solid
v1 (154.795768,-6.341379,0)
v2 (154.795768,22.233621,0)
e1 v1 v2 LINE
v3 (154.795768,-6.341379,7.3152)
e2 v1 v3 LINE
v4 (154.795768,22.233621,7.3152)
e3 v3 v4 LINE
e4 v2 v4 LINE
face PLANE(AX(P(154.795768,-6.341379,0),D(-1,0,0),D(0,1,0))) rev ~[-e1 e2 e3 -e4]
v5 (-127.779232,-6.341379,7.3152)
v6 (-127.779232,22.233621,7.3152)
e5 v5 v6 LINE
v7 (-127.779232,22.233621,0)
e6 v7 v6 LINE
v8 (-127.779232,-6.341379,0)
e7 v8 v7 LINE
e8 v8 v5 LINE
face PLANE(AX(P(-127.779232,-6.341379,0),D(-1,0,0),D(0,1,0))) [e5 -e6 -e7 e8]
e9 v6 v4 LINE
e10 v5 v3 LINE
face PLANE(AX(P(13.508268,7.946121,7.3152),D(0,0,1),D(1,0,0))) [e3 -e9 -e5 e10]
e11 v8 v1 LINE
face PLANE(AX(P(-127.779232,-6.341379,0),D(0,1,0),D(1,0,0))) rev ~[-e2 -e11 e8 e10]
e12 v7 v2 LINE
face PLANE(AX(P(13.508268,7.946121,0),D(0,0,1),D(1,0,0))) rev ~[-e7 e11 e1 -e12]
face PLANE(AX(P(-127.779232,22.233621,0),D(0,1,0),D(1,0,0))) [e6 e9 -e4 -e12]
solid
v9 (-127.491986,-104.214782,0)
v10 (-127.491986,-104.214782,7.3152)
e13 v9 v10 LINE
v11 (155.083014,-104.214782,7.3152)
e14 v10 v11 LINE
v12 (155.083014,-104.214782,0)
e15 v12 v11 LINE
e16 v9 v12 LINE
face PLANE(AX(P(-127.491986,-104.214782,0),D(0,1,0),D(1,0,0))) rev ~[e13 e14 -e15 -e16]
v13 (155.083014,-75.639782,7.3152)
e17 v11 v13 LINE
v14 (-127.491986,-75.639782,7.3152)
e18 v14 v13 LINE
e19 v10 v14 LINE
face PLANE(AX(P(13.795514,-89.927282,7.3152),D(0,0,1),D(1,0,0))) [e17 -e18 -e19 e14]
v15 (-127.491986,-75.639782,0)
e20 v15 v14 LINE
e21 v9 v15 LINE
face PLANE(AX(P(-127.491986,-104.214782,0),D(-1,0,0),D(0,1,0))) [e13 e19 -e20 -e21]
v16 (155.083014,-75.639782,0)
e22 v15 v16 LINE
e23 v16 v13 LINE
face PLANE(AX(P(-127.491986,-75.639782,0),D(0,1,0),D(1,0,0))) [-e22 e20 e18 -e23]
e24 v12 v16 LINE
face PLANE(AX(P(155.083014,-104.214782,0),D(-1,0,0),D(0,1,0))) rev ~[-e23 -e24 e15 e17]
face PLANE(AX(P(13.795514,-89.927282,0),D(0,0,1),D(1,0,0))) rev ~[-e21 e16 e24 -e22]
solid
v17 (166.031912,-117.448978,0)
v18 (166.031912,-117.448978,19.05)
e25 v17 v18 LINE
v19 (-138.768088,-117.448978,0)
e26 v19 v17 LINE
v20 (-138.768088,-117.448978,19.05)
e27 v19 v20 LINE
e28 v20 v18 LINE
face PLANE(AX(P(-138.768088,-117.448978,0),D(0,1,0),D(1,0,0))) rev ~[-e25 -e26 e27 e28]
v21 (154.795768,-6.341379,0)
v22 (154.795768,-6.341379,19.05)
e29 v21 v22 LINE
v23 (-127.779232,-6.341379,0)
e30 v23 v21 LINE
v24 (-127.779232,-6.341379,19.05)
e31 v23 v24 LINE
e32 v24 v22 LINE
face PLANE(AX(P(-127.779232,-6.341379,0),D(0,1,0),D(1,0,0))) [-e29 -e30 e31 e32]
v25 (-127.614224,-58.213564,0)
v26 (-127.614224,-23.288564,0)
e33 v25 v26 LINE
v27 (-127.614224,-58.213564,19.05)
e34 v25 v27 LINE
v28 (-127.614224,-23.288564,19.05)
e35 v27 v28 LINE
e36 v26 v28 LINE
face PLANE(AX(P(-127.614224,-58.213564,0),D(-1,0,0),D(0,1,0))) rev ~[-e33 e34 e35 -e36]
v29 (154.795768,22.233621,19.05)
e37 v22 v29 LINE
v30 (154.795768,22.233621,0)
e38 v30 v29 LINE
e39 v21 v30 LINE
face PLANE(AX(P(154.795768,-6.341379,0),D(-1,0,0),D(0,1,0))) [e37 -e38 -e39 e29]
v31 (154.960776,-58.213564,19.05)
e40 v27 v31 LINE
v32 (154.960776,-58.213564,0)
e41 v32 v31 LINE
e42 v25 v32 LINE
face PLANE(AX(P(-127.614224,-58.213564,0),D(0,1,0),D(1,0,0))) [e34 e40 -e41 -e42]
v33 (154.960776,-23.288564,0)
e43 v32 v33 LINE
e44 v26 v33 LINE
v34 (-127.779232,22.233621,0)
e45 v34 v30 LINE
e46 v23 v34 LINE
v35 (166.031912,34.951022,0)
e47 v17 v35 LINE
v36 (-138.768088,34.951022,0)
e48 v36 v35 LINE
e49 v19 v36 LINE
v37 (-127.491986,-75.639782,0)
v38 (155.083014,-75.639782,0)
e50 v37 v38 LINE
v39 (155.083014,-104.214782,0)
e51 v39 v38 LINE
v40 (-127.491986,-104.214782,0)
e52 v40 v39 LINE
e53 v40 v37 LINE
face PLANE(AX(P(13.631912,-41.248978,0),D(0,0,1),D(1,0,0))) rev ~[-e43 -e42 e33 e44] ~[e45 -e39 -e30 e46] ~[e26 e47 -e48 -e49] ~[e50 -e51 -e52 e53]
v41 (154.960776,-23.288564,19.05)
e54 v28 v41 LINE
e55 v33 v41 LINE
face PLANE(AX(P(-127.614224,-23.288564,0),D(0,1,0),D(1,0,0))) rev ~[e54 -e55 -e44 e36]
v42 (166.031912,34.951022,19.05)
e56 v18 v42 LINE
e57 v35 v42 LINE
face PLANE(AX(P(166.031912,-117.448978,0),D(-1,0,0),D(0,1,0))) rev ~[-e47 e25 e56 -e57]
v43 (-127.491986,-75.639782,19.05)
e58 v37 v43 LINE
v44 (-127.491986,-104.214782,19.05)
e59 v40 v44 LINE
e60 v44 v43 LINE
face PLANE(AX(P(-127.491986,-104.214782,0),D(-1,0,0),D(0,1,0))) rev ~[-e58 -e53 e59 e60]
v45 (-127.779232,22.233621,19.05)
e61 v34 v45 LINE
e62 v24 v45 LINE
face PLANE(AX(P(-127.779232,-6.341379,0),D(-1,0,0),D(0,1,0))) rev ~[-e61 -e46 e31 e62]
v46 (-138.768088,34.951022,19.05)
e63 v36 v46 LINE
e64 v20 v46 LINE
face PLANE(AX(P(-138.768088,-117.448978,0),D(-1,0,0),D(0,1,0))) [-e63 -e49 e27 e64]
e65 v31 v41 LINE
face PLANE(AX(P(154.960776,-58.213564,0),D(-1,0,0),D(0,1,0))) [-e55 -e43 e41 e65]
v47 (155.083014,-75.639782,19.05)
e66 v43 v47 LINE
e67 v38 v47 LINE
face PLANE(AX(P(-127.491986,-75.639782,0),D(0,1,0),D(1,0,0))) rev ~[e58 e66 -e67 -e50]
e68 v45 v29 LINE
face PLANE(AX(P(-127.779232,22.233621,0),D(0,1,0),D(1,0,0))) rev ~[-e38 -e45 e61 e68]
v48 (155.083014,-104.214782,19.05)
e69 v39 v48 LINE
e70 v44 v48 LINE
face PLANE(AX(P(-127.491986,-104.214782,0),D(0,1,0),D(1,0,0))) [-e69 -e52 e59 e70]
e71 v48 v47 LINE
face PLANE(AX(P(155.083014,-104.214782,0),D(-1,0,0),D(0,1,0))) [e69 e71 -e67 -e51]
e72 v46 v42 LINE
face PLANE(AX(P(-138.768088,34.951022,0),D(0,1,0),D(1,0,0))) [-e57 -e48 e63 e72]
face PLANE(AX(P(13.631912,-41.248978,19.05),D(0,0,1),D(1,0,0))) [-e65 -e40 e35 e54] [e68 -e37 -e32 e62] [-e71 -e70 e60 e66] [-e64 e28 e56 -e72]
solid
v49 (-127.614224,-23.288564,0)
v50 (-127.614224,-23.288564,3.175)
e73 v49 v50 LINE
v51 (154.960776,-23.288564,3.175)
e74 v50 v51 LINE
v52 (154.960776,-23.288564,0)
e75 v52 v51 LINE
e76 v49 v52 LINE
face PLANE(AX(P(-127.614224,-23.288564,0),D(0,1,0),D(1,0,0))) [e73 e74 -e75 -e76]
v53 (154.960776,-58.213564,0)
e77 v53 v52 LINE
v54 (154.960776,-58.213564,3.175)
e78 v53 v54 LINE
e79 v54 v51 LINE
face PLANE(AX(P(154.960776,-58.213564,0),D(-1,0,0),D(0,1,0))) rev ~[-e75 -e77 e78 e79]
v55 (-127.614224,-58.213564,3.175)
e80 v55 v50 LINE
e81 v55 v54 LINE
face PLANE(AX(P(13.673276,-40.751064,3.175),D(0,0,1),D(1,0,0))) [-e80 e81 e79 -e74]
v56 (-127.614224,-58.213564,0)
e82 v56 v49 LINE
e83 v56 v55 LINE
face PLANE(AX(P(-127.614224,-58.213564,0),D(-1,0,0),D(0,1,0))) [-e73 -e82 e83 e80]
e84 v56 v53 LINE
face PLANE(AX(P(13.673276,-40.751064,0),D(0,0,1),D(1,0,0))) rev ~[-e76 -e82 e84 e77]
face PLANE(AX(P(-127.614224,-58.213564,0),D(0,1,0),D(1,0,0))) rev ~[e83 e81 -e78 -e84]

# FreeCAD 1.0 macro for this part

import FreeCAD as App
import Part
import Sketcher
from FreeCAD import Vector
Q = App.Units.Quantity

doc = App.newDocument("Part")
body = doc.addObject("PartDesign::Body", "Body")
body.AllowCompound = True

# Sketch on XY plane
sketch1 = doc.addObject("Sketcher::SketchObject", "Sketch")
body.addObject(sketch1)
sketch1.AttachmentSupport = (doc.XY_Plane, [""])
sketch1.MapMode = "FlatFace"
sketch1.addGeometry([
    Part.LineSegment(Vector(-127, -76, 0), Vector(-127, -104, 0)),  # 0
    Part.LineSegment(Vector(-127, -104, 0), Vector(155, -104, 0)),  # 1
    Part.LineSegment(Vector(155, -104, 0), Vector(155, -76, 0)),  # 2
    Part.LineSegment(Vector(155, -76, 0), Vector(-127, -76, 0)),  # 3
    Part.LineSegment(Vector(-128, 22, 0), Vector(-128, -6, 0)),  # 4
    Part.LineSegment(Vector(-128, -6, 0), Vector(155, -6, 0)),  # 5
    Part.LineSegment(Vector(155, -6, 0), Vector(155, 22, 0)),  # 6
    Part.LineSegment(Vector(155, 22, 0), Vector(-128, 22, 0)),  # 7
], False)
sketch1.addConstraint([
    Sketcher.Constraint("Coincident", 0, 2, 1, 1),
    Sketcher.Constraint("Coincident", 1, 2, 2, 1),
    Sketcher.Constraint("Coincident", 2, 2, 3, 1),
    Sketcher.Constraint("Coincident", 3, 2, 0, 1),
    Sketcher.Constraint("Coincident", 4, 2, 5, 1),
    Sketcher.Constraint("Coincident", 5, 2, 6, 1),
    Sketcher.Constraint("Coincident", 6, 2, 7, 1),
    Sketcher.Constraint("Coincident", 7, 2, 4, 1),
    Sketcher.Constraint("Vertical", 0),
    Sketcher.Constraint("Horizontal", 1),
    Sketcher.Constraint("Vertical", 2),
    Sketcher.Constraint("Horizontal", 3),
    Sketcher.Constraint("Vertical", 4),
    Sketcher.Constraint("Horizontal", 5),
    Sketcher.Constraint("Vertical", 6),
    Sketcher.Constraint("Horizontal", 7),
    Sketcher.Constraint("Equal", 3, 5),
    Sketcher.Constraint("Equal", 2, 4),
    Sketcher.Constraint("DistanceX", 1, 1, 1, 2, Q("11.125 in")),
    Sketcher.Constraint("DistanceY", 0, 2, 0, 1, Q("1.125 in")),
    Sketcher.Constraint("DistanceY", 0, 2, -1, 1, 104.214782),
    Sketcher.Constraint("DistanceX", 4, 2, -1, 1, 127.779232),
    Sketcher.Constraint("DistanceY", 4, 2, -1, 1, 6.341379),
    Sketcher.Constraint("DistanceX", 0, 2, -1, 1, 127.491986),
])
pad1 = doc.addObject("PartDesign::Pad", "Pad")
body.addObject(pad1)
pad1.Profile = sketch1
pad1.Length = Q("0.288 in")
body2 = doc.addObject("PartDesign::Body", "Body001")

# Sketch on XY plane
sketch2 = doc.addObject("Sketcher::SketchObject", "Sketch001")
body2.addObject(sketch2)
sketch2.AttachmentSupport = (doc.getObject("XY_Plane001"), [""])
sketch2.MapMode = "FlatFace"
sketch2.addGeometry([
    Part.LineSegment(Vector(-128, -23, 0), Vector(-128, -58, 0)),
    Part.LineSegment(Vector(-128, -58, 0), Vector(155, -58, 0)),
    Part.LineSegment(Vector(155, -58, 0), Vector(155, -23, 0)),
    Part.LineSegment(Vector(155, -23, 0), Vector(-128, -23, 0)),
], False)
sketch2.addConstraint([
    Sketcher.Constraint("Coincident", 0, 2, 1, 1),
    Sketcher.Constraint("Coincident", 1, 2, 2, 1),
    Sketcher.Constraint("Coincident", 2, 2, 3, 1),
    Sketcher.Constraint("Coincident", 3, 2, 0, 1),
    Sketcher.Constraint("Vertical", 0),
    Sketcher.Constraint("Horizontal", 1),
    Sketcher.Constraint("Vertical", 2),
    Sketcher.Constraint("Horizontal", 3),
    Sketcher.Constraint("DistanceX", 1, 1, 1, 2, Q("11.125 in")),
    Sketcher.Constraint("DistanceY", 0, 2, 0, 1, Q("1.375 in")),
    Sketcher.Constraint("DistanceX", 0, 2, -1, 1, 127.614224),
    Sketcher.Constraint("DistanceY", 0, 2, -1, 1, 58.213564),
])
pad2 = doc.addObject("PartDesign::Pad", "Pad001")
body2.addObject(pad2)
pad2.Profile = sketch2
pad2.Length = Q("0.125 in")
body3 = doc.addObject("PartDesign::Body", "Body002")

# Sketch on XY plane
sketch3 = doc.addObject("Sketcher::SketchObject", "Sketch002")
body3.addObject(sketch3)
sketch3.AttachmentSupport = (doc.getObject("XY_Plane002"), [""])
sketch3.MapMode = "FlatFace"
sketch3.addGeometry([
    Part.LineSegment(Vector(-139, 35, 0), Vector(-139, -117, 0)),  # 0
    Part.LineSegment(Vector(-139, -117, 0), Vector(166, -117, 0)),  # 1
    Part.LineSegment(Vector(166, -117, 0), Vector(166, 35, 0)),  # 2
    Part.LineSegment(Vector(166, 35, 0), Vector(-139, 35, 0)),  # 3
    Part.LineSegment(Vector(155, -104, 0), Vector(-127, -104, 0)),  # 4
    Part.LineSegment(Vector(-127, -104, 0), Vector(-127, -76, 0)),  # 5
    Part.LineSegment(Vector(-127, -76, 0), Vector(155, -76, 0)),  # 6
    Part.LineSegment(Vector(155, -76, 0), Vector(155, -104, 0)),  # 7
    Part.LineSegment(Vector(155, -6, 0), Vector(-128, -6, 0)),  # 8
    Part.LineSegment(Vector(-128, -6, 0), Vector(-128, 22, 0)),  # 9
    Part.LineSegment(Vector(-128, 22, 0), Vector(155, 22, 0)),  # 10
    Part.LineSegment(Vector(155, 22, 0), Vector(155, -6, 0)),  # 11
    Part.LineSegment(Vector(155, -58, 0), Vector(-128, -58, 0)),  # 12
    Part.LineSegment(Vector(-128, -58, 0), Vector(-128, -23, 0)),  # 13
    Part.LineSegment(Vector(-128, -23, 0), Vector(155, -23, 0)),  # 14
    Part.LineSegment(Vector(155, -23, 0), Vector(155, -58, 0)),  # 15
], False)
sketch3.addConstraint([
    Sketcher.Constraint("Coincident", 0, 2, 1, 1),
    Sketcher.Constraint("Coincident", 1, 2, 2, 1),
    Sketcher.Constraint("Coincident", 2, 2, 3, 1),
    Sketcher.Constraint("Coincident", 3, 2, 0, 1),
    Sketcher.Constraint("Coincident", 4, 2, 5, 1),
    Sketcher.Constraint("Coincident", 5, 2, 6, 1),
    Sketcher.Constraint("Coincident", 6, 2, 7, 1),
    Sketcher.Constraint("Coincident", 7, 2, 4, 1),
    Sketcher.Constraint("Coincident", 8, 2, 9, 1),
    Sketcher.Constraint("Coincident", 9, 2, 10, 1),
    Sketcher.Constraint("Coincident", 10, 2, 11, 1),
    Sketcher.Constraint("Coincident", 11, 2, 8, 1),
    Sketcher.Constraint("Coincident", 12, 2, 13, 1),
    Sketcher.Constraint("Coincident", 13, 2, 14, 1),
    Sketcher.Constraint("Coincident", 14, 2, 15, 1),
    Sketcher.Constraint("Coincident", 15, 2, 12, 1),
    Sketcher.Constraint("Vertical", 0),
    Sketcher.Constraint("Horizontal", 1),
    Sketcher.Constraint("Vertical", 2),
    Sketcher.Constraint("Horizontal", 3),
    Sketcher.Constraint("Horizontal", 4),
    Sketcher.Constraint("Vertical", 5),
    Sketcher.Constraint("Horizontal", 6),
    Sketcher.Constraint("Vertical", 7),
    Sketcher.Constraint("Horizontal", 8),
    Sketcher.Constraint("Vertical", 9),
    Sketcher.Constraint("Horizontal", 10),
    Sketcher.Constraint("Vertical", 11),
    Sketcher.Constraint("Horizontal", 12),
    Sketcher.Constraint("Vertical", 13),
    Sketcher.Constraint("Horizontal", 14),
    Sketcher.Constraint("Vertical", 15),
    Sketcher.Constraint("Equal", 6, 8),
    Sketcher.Constraint("Equal", 10, 12),
    Sketcher.Constraint("Equal", 7, 9),
    Sketcher.Constraint("DistanceX", 1, 1, 1, 2, Q("12 in")),
    Sketcher.Constraint("DistanceY", 0, 2, 0, 1, Q("6 in")),
    Sketcher.Constraint("DistanceX", 4, 2, 4, 1, Q("11.125 in")),
    Sketcher.Constraint("DistanceY", 5, 1, 5, 2, Q("1.125 in")),
    Sketcher.Constraint("DistanceY", 13, 1, 13, 2, Q("1.375 in")),
    Sketcher.Constraint("DistanceX", 4, 2, 1, 2, 293.523898),
    Sketcher.Constraint("DistanceY", 8, 2, 3, 2, 41.292401),
    Sketcher.Constraint("DistanceX", 0, 2, -1, 1, 138.768088),
    Sketcher.Constraint("DistanceY", 4, 2, -1, 1, 104.214782),
    Sketcher.Constraint("DistanceX", 8, 2, -1, 1, 127.779232),
    Sketcher.Constraint("DistanceY", 8, 2, -1, 1, 6.341379),
    Sketcher.Constraint("DistanceX", 8, 2, 12, 2, 0.165008),
    Sketcher.Constraint("DistanceY", 7, 2, 14, 2, 80.926218),
])
pad3 = doc.addObject("PartDesign::Pad", "Pad002")
body3.addObject(pad3)
pad3.Profile = sketch3
pad3.Length = Q("0.75 in")

doc.recompute()
